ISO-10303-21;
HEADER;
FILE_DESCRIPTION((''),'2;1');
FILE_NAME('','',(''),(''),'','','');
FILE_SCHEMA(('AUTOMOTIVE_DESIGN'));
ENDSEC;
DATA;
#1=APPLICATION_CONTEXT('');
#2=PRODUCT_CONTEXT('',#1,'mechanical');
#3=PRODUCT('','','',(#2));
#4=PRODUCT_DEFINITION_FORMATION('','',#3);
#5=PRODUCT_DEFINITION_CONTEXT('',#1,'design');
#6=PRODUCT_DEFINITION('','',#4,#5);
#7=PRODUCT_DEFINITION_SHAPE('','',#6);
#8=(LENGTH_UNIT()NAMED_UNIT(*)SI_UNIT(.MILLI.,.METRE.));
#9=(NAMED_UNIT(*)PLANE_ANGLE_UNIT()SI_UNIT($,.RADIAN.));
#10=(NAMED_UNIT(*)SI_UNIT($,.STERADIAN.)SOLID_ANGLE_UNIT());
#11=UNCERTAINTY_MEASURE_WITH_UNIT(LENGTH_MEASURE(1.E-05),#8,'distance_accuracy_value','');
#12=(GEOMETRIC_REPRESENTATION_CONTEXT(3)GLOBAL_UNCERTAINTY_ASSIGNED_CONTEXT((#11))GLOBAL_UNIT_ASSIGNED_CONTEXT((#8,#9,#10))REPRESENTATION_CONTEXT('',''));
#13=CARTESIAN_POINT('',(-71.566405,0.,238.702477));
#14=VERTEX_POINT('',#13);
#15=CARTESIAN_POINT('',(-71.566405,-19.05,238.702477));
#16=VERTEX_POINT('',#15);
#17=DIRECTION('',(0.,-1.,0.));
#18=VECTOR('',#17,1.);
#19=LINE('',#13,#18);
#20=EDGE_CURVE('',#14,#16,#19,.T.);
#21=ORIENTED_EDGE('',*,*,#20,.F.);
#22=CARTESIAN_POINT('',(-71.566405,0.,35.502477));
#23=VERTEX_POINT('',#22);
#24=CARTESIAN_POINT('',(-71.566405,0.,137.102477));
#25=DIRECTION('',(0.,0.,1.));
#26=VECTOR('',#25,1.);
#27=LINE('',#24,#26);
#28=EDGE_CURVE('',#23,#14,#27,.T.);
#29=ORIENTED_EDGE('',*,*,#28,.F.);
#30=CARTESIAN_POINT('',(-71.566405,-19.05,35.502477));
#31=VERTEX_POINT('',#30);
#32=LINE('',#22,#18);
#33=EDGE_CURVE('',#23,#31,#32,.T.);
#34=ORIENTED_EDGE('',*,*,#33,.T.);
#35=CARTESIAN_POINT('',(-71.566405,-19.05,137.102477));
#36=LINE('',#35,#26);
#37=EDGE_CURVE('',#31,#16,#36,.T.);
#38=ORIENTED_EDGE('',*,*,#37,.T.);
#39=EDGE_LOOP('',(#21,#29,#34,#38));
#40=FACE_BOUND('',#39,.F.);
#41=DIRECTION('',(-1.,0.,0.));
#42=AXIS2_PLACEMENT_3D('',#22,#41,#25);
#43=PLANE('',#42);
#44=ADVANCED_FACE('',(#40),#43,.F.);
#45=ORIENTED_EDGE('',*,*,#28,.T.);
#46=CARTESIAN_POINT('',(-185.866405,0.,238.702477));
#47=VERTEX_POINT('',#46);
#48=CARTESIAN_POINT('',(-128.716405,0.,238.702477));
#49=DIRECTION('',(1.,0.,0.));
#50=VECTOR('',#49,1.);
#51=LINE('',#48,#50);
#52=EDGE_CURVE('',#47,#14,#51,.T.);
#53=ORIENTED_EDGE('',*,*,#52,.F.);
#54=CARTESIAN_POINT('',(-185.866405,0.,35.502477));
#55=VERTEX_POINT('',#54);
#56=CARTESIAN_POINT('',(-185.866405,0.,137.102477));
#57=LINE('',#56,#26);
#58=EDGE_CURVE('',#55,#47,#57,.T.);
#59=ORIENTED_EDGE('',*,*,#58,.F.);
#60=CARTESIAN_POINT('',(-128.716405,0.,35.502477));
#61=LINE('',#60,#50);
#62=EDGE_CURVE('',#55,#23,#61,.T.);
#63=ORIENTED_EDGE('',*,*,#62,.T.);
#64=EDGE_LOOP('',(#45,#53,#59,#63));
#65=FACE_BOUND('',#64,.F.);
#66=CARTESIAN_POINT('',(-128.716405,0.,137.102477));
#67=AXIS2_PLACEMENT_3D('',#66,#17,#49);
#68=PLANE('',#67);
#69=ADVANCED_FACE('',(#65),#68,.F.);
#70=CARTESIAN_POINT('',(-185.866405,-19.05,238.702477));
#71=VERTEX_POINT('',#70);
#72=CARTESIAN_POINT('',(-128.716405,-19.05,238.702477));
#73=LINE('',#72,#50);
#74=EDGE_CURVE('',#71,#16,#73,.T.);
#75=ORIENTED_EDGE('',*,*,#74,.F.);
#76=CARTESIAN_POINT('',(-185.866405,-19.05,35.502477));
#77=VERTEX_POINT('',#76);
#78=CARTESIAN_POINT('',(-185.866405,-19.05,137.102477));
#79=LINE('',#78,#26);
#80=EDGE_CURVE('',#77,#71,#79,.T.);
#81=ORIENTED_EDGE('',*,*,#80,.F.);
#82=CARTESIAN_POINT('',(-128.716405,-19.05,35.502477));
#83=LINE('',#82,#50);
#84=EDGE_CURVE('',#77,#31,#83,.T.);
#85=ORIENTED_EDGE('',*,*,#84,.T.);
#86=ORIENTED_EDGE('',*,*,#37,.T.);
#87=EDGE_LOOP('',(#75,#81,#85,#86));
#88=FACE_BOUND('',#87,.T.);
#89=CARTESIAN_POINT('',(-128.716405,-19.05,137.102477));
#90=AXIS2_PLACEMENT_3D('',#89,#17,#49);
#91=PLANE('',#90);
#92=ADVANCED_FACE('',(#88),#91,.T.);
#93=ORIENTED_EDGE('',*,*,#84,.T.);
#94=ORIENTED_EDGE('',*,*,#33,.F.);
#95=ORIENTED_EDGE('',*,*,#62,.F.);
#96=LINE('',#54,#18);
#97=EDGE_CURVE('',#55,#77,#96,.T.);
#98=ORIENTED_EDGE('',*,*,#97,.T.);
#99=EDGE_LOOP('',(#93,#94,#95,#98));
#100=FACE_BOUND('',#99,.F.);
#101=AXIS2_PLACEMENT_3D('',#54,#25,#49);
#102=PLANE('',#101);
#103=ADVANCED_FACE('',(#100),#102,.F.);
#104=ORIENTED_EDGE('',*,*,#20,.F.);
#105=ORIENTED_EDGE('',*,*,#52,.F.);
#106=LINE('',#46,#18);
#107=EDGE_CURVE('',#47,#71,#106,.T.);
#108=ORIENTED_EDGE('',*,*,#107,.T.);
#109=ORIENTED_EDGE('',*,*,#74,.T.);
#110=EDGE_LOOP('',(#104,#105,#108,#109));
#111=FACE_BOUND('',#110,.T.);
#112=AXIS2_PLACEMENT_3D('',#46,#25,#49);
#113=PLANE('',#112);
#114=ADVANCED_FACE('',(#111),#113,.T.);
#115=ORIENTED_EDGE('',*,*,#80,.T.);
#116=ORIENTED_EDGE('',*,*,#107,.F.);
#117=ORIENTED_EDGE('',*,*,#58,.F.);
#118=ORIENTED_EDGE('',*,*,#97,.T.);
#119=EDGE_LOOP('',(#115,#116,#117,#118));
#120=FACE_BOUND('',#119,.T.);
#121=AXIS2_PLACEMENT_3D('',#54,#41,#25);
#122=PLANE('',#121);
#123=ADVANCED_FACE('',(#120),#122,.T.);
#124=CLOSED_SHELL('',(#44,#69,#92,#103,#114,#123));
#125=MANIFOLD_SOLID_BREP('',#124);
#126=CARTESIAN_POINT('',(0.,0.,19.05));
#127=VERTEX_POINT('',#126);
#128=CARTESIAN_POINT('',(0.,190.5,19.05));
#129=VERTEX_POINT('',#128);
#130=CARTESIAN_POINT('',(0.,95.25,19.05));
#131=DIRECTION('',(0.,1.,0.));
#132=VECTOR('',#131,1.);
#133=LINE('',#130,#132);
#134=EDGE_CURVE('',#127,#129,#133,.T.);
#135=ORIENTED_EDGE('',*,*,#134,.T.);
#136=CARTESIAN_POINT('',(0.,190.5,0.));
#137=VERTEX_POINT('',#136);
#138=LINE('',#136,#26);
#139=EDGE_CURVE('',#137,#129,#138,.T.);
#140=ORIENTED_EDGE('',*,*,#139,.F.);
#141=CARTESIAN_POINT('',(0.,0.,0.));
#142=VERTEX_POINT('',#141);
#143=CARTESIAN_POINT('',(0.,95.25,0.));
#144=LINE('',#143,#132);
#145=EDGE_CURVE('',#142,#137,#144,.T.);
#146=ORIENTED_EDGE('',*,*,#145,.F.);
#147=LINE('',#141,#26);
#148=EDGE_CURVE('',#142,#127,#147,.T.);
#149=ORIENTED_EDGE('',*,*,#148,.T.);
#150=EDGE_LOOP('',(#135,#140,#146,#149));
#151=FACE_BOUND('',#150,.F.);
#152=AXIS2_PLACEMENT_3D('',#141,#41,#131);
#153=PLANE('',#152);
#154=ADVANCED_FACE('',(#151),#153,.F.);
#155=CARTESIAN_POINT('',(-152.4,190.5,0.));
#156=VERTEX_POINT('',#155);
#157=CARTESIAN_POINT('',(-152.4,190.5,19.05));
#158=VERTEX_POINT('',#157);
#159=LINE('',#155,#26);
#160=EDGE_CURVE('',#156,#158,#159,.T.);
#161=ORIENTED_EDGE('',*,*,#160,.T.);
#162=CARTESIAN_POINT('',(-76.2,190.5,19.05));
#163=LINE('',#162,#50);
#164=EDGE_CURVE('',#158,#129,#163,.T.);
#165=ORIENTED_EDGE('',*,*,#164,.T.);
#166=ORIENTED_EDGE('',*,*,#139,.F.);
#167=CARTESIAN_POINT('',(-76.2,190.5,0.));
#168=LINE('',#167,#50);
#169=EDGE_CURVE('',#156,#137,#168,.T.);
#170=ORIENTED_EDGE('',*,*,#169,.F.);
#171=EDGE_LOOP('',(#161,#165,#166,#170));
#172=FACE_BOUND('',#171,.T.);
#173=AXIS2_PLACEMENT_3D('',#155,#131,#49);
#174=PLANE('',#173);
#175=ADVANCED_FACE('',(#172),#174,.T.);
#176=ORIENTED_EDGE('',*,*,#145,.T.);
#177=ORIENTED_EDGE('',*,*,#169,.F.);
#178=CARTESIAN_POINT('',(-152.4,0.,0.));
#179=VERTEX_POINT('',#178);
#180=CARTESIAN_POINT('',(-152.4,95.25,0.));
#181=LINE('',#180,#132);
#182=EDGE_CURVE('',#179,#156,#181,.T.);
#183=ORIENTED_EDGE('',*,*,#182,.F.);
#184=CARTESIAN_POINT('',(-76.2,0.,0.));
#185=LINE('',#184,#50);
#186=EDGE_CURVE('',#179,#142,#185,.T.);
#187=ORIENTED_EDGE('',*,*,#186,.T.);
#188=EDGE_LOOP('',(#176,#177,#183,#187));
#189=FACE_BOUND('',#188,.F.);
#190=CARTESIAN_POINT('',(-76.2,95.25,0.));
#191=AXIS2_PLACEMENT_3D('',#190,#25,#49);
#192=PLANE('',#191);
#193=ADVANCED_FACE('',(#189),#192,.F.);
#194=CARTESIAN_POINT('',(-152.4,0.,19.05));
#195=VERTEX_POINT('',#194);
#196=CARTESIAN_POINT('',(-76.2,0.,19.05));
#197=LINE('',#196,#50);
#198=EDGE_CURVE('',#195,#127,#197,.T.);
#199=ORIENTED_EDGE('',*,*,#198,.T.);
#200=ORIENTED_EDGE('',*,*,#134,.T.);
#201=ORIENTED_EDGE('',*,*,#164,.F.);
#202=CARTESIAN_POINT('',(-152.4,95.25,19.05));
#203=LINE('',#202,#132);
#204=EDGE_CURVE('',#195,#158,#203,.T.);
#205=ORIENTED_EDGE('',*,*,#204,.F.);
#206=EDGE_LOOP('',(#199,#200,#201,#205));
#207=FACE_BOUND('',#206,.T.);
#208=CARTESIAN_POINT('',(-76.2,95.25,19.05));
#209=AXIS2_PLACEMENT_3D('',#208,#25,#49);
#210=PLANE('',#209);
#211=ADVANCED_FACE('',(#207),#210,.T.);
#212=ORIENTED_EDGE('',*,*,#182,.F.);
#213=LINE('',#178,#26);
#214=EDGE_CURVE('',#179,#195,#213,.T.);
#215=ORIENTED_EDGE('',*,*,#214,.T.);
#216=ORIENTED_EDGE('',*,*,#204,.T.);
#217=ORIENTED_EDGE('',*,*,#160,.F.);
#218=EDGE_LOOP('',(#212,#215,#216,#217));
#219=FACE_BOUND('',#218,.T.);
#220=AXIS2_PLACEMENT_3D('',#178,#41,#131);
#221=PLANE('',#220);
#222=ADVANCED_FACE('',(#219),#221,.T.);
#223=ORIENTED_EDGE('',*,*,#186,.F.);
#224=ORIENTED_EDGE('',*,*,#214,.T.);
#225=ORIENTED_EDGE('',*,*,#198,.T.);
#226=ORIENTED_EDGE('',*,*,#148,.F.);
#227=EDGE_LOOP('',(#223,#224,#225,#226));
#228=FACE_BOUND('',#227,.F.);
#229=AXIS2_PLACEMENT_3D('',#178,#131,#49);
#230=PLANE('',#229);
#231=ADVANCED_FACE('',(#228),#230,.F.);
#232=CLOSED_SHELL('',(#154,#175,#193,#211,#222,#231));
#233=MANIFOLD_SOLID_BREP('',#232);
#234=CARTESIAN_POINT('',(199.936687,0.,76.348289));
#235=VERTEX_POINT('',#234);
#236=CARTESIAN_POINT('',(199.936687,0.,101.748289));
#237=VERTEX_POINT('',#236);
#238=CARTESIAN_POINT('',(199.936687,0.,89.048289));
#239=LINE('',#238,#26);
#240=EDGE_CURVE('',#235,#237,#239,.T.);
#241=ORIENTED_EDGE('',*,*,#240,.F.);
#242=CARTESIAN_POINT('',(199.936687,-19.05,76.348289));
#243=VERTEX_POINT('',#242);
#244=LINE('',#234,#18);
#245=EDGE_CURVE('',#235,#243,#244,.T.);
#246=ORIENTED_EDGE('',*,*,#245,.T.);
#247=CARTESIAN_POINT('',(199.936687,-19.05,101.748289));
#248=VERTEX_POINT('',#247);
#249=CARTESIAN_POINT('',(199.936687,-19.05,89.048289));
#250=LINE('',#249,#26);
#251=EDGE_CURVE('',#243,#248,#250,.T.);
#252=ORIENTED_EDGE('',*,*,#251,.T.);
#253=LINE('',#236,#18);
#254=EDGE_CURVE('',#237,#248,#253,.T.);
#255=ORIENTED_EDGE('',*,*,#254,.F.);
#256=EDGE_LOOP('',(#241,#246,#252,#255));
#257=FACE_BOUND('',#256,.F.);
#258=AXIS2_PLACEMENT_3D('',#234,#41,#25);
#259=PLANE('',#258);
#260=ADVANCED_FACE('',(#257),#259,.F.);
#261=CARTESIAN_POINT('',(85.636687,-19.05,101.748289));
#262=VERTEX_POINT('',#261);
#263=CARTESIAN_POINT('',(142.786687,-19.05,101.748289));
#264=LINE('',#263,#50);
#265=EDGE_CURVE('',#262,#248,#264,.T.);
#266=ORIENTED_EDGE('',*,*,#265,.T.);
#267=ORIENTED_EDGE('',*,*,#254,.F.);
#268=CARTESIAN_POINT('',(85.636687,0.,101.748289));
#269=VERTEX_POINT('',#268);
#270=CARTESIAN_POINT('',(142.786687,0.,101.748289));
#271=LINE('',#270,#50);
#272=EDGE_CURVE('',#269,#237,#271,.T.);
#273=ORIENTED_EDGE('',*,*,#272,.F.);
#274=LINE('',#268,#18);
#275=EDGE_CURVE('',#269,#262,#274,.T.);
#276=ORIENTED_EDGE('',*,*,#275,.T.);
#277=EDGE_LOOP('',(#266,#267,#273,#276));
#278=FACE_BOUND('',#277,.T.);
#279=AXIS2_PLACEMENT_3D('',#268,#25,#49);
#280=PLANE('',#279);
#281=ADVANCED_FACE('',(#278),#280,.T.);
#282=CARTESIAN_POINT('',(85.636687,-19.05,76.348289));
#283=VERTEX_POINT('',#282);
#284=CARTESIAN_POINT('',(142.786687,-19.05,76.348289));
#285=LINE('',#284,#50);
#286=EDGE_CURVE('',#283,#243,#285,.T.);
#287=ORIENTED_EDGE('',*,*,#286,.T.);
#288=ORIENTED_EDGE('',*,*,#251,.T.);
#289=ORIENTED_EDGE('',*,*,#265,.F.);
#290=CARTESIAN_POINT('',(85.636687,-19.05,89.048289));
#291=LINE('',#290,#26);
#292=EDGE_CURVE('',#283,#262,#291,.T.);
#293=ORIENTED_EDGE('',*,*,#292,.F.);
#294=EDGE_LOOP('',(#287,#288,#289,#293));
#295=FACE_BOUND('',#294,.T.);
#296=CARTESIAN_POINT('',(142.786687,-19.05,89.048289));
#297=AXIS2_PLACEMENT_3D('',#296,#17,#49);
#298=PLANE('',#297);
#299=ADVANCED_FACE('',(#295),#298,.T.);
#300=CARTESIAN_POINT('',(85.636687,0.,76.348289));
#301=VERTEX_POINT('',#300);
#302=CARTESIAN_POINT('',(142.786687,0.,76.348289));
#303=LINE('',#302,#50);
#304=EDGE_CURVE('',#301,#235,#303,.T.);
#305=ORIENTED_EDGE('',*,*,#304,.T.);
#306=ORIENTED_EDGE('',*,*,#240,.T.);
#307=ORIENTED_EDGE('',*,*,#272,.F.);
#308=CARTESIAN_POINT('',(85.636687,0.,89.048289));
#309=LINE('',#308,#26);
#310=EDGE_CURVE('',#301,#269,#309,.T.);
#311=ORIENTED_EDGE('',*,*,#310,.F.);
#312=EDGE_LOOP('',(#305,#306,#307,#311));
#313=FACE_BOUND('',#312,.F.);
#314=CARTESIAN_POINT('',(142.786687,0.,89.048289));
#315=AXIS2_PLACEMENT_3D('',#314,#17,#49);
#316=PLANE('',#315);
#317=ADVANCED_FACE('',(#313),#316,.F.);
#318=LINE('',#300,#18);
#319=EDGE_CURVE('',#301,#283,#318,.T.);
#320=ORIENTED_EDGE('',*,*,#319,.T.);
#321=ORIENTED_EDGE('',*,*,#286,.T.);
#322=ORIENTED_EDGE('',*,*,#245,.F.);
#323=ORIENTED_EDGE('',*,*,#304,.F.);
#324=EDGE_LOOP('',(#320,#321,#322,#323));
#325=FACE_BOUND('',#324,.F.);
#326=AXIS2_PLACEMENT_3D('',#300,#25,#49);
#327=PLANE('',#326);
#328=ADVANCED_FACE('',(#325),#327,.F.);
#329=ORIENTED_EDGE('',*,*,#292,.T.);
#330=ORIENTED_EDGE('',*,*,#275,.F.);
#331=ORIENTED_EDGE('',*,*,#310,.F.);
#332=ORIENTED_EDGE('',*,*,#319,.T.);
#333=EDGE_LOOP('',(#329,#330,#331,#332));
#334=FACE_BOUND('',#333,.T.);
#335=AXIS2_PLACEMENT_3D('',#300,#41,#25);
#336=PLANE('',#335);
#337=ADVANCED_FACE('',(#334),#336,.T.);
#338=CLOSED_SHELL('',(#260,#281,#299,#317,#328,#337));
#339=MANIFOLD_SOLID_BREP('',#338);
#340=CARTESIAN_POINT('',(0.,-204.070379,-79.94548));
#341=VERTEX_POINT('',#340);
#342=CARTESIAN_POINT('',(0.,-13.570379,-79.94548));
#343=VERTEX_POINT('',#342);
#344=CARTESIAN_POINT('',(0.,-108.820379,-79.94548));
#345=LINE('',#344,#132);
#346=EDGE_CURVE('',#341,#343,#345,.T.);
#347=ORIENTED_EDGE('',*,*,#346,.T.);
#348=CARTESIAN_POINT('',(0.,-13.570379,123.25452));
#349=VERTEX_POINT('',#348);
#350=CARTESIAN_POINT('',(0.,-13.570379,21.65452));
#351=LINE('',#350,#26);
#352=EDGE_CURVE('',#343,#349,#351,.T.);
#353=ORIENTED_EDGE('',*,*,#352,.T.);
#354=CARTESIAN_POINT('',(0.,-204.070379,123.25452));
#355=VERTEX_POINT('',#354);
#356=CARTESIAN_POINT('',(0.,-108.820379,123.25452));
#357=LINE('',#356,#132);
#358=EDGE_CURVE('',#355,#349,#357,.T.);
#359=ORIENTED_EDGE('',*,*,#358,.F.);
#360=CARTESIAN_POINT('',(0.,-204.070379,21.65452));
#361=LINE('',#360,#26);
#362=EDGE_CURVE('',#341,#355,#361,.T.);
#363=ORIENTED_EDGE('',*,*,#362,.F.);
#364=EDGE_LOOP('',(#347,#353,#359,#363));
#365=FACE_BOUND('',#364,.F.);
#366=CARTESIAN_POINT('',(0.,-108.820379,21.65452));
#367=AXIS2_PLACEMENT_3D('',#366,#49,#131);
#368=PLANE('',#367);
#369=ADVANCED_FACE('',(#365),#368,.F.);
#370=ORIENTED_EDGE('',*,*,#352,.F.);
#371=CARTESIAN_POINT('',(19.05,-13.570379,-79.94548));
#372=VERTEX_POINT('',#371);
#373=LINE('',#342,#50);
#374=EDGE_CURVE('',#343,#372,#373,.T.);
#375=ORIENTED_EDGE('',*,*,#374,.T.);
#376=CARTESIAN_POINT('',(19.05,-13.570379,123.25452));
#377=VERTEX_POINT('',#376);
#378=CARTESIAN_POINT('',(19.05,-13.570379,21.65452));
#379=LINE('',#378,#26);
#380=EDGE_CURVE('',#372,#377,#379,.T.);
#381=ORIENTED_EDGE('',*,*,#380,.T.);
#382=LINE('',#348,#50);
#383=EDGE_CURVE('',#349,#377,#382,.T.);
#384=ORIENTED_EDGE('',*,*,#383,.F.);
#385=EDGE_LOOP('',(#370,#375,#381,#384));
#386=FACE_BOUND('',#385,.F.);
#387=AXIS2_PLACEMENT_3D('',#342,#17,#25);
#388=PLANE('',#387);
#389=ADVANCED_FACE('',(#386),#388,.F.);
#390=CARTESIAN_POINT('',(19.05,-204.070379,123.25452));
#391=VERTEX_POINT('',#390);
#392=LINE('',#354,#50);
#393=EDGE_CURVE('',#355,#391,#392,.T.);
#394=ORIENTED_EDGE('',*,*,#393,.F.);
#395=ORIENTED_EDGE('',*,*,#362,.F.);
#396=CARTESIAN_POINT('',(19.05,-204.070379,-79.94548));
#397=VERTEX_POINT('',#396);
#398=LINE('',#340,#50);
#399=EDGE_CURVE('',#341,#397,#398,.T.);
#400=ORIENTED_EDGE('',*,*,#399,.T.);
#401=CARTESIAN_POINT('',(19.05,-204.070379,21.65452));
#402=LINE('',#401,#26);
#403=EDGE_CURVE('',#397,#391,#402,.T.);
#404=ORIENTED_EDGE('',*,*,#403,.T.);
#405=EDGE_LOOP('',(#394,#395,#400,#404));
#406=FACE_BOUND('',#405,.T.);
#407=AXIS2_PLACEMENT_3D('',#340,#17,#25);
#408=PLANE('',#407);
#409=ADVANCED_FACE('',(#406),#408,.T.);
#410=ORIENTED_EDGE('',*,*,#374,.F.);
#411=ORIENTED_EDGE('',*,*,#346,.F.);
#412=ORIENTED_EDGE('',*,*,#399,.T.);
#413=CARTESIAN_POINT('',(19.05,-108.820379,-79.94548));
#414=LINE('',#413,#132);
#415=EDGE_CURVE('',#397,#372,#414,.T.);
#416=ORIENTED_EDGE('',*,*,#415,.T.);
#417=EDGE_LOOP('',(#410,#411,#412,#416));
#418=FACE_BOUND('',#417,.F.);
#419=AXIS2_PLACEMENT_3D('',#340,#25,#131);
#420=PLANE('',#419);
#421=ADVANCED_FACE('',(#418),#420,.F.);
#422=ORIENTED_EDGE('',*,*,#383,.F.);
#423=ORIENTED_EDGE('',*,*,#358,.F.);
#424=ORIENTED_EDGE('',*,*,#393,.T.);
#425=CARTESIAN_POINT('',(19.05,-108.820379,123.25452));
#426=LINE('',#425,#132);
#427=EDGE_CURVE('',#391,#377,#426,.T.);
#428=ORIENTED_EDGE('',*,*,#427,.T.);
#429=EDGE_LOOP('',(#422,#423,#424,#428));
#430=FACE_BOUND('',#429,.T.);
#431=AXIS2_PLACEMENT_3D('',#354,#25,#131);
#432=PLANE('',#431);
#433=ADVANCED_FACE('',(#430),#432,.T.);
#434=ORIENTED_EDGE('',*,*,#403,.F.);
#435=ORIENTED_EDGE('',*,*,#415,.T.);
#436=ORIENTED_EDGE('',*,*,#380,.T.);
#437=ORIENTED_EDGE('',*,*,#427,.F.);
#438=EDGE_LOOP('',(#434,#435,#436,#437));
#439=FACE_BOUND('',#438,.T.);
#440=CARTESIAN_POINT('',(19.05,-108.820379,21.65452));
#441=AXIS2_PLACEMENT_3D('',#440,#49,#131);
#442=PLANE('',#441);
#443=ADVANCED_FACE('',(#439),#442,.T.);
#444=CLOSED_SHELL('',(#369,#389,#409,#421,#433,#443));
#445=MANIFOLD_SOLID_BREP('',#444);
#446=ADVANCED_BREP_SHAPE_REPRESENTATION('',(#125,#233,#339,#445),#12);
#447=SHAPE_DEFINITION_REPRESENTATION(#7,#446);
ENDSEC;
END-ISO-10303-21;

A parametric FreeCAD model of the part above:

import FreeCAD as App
import Part
import Sketcher
Q = App.Units.Quantity

doc = App.newDocument("Part")
body = doc.addObject("PartDesign::Body", "Body")

# Sketch on XY plane
sketch1 = doc.addObject("Sketcher::SketchObject", "Sketch")
body.addObject(sketch1)
sketch1.AttachmentSupport = (doc.XY_Plane, [""])
sketch1.MapMode = "FlatFace"
sketch1.addGeometry([
    Part.LineSegment(App.Vector(-152, 190, 0), App.Vector(-152, 0, 0)),
    Part.LineSegment(App.Vector(-152, 0, 0), App.Vector(0, 0, 0)),
    Part.LineSegment(App.Vector(0, 0, 0), App.Vector(0, 190, 0)),
    Part.LineSegment(App.Vector(0, 190, 0), App.Vector(-152, 190, 0)),
], False)
sketch1.addConstraint([
    Sketcher.Constraint("Coincident", 0, 2, 1, 1),
    Sketcher.Constraint("Coincident", 1, 2, 2, 1),
    Sketcher.Constraint("Coincident", 2, 2, 3, 1),
    Sketcher.Constraint("Coincident", 3, 2, 0, 1),
    Sketcher.Constraint("Vertical", 0),
    Sketcher.Constraint("Horizontal", 1),
    Sketcher.Constraint("Vertical", 2),
    Sketcher.Constraint("Horizontal", 3),
    Sketcher.Constraint("Coincident", 1, 2, -1, 1),
    Sketcher.Constraint("DistanceX", 1, 1, 1, 2, Q("6 in")),
    Sketcher.Constraint("DistanceY", 0, 2, 0, 1, Q("7.5 in")),
])
pad1 = doc.addObject("PartDesign::Pad", "Pad")
body.addObject(pad1)
pad1.Profile = sketch1
pad1.Length = Q("0.75 in")
body2 = doc.addObject("PartDesign::Body", "Body001")

# Sketch on XZ plane
sketch2 = doc.addObject("Sketcher::SketchObject", "Sketch001")
body2.addObject(sketch2)
sketch2.AttachmentSupport = (doc.getObject("XZ_Plane001"), [""])
sketch2.MapMode = "FlatFace"
sketch2.addGeometry([
    Part.LineSegment(App.Vector(-186, 239, 0), App.Vector(-186, 36, 0)),
    Part.LineSegment(App.Vector(-186, 36, 0), App.Vector(-72, 36, 0)),
    Part.LineSegment(App.Vector(-72, 36, 0), App.Vector(-72, 239, 0)),
    Part.LineSegment(App.Vector(-72, 239, 0), App.Vector(-186, 239, 0)),
], False)
sketch2.addConstraint([
    Sketcher.Constraint("Coincident", 0, 2, 1, 1),
    Sketcher.Constraint("Coincident", 1, 2, 2, 1),
    Sketcher.Constraint("Coincident", 2, 2, 3, 1),
    Sketcher.Constraint("Coincident", 3, 2, 0, 1),
    Sketcher.Constraint("Vertical", 0),
    Sketcher.Constraint("Horizontal", 1),
    Sketcher.Constraint("Vertical", 2),
    Sketcher.Constraint("Horizontal", 3),
    Sketcher.Constraint("DistanceY", 0, 2, 0, 1, Q("8 in")),
    Sketcher.Constraint("DistanceX", 1, 1, 1, 2, Q("4.5 in")),
    Sketcher.Constraint("DistanceX", 0, 2, -1, 1, Q("185.866405 mm")),
    Sketcher.Constraint("DistanceY", -1, 1, 0, 2, Q("35.502477 mm")),
])
pad2 = doc.addObject("PartDesign::Pad", "Pad001")
body2.addObject(pad2)
pad2.Profile = sketch2
pad2.Length = Q("0.75 in")
body3 = doc.addObject("PartDesign::Body", "Body002")

# Sketch on YZ plane
sketch3 = doc.addObject("Sketcher::SketchObject", "Sketch002")
body3.addObject(sketch3)
sketch3.AttachmentSupport = (doc.getObject("YZ_Plane002"), [""])
sketch3.MapMode = "FlatFace"
sketch3.addGeometry([
    Part.LineSegment(App.Vector(-204, 123, 0), App.Vector(-204, -80, 0)),
    Part.LineSegment(App.Vector(-204, -80, 0), App.Vector(-14, -80, 0)),
    Part.LineSegment(App.Vector(-14, -80, 0), App.Vector(-14, 123, 0)),
    Part.LineSegment(App.Vector(-14, 123, 0), App.Vector(-204, 123, 0)),
], False)
sketch3.addConstraint([
    Sketcher.Constraint("Coincident", 0, 2, 1, 1),
    Sketcher.Constraint("Coincident", 1, 2, 2, 1),
    Sketcher.Constraint("Coincident", 2, 2, 3, 1),
    Sketcher.Constraint("Coincident", 3, 2, 0, 1),
    Sketcher.Constraint("Vertical", 0),
    Sketcher.Constraint("Horizontal", 1),
    Sketcher.Constraint("Vertical", 2),
    Sketcher.Constraint("Horizontal", 3),
    Sketcher.Constraint("DistanceY", 0, 2, 0, 1, Q("8 in")),
    Sketcher.Constraint("DistanceX", 1, 1, 1, 2, Q("7.5 in")),
    Sketcher.Constraint("DistanceX", 0, 2, -1, 1, Q("204.070379 mm")),
    Sketcher.Constraint("DistanceY", 0, 2, -1, 1, Q("79.94548 mm")),
])
pad3 = doc.addObject("PartDesign::Pad", "Pad002")
body3.addObject(pad3)
pad3.Profile = sketch3
pad3.Length = Q("0.75 in")
body4 = doc.addObject("PartDesign::Body", "Body003")

# Sketch on XZ plane
sketch4 = doc.addObject("Sketcher::SketchObject", "Sketch003")
body4.addObject(sketch4)
sketch4.AttachmentSupport = (doc.getObject("XZ_Plane003"), [""])
sketch4.MapMode = "FlatFace"
sketch4.addGeometry([
    Part.LineSegment(App.Vector(86, 102, 0), App.Vector(86, 76, 0)),
    Part.LineSegment(App.Vector(86, 76, 0), App.Vector(200, 76, 0)),
    Part.LineSegment(App.Vector(200, 76, 0), App.Vector(200, 102, 0)),
    Part.LineSegment(App.Vector(200, 102, 0), App.Vector(86, 102, 0)),
], False)
sketch4.addConstraint([
    Sketcher.Constraint("Coincident", 0, 2, 1, 1),
    Sketcher.Constraint("Coincident", 1, 2, 2, 1),
    Sketcher.Constraint("Coincident", 2, 2, 3, 1),
    Sketcher.Constraint("Coincident", 3, 2, 0, 1),
    Sketcher.Constraint("Vertical", 0),
    Sketcher.Constraint("Horizontal", 1),
    Sketcher.Constraint("Vertical", 2),
    Sketcher.Constraint("Horizontal", 3),
    Sketcher.Constraint("DistanceY", 0, 2, 0, 1, Q("1 in")),
    Sketcher.Constraint("DistanceX", 1, 1, 1, 2, Q("4.5 in")),
    Sketcher.Constraint("DistanceY", -1, 1, 0, 2, Q("76.348289 mm")),
    Sketcher.Constraint("DistanceX", -1, 1, 0, 2, Q("85.636687 mm")),
])
pad4 = doc.addObject("PartDesign::Pad", "Pad003")
body4.addObject(pad4)
pad4.Profile = sketch4
pad4.Length = Q("0.75 in")

doc.recompute()
